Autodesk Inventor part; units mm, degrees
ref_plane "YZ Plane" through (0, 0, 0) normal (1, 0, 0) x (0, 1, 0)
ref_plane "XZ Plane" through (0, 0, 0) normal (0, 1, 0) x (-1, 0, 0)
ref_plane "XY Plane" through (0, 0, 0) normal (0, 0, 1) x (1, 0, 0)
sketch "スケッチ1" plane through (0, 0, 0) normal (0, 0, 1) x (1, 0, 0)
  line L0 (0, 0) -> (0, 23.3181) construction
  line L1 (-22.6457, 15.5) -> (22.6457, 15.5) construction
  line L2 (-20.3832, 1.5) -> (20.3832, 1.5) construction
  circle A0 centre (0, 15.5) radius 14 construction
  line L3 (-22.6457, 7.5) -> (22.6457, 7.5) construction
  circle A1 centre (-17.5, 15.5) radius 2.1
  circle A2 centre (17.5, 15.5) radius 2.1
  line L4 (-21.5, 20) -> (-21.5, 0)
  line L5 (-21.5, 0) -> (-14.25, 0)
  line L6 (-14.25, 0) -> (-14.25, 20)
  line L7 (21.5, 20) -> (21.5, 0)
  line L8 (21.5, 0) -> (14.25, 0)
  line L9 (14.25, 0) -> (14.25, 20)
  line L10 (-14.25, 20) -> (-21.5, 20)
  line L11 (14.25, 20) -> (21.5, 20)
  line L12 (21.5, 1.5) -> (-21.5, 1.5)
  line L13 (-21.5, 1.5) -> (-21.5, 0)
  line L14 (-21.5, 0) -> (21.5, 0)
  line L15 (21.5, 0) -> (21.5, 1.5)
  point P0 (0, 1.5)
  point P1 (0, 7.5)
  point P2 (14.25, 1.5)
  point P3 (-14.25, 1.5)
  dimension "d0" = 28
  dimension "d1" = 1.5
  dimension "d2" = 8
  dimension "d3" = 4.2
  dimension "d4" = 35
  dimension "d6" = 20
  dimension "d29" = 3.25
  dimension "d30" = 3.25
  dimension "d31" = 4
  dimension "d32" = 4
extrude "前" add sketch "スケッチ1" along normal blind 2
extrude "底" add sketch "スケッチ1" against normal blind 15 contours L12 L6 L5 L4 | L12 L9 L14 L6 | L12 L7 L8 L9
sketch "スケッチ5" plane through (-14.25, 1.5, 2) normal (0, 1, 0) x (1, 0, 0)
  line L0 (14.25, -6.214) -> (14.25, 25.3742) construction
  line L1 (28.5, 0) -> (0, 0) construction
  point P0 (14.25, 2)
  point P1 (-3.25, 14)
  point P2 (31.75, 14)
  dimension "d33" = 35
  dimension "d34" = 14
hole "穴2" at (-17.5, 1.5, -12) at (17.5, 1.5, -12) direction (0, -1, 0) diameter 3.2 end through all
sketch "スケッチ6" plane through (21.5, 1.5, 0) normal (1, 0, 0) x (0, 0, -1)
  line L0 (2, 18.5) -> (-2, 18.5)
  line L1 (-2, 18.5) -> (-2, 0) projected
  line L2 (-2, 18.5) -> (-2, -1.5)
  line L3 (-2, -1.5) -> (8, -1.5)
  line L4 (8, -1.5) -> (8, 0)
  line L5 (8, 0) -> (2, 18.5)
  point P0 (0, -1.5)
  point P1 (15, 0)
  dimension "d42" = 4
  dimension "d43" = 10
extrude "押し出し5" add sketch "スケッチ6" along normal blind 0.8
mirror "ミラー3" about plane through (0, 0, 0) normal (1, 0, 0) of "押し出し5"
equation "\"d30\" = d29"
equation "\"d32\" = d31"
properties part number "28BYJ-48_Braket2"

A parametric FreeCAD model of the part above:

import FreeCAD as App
import Part
import Sketcher

doc = App.newDocument("Part")
body = doc.addObject("PartDesign::Body", "Body")

sketch1 = doc.addObject("Sketcher::SketchObject", "Sketch")
body.addObject(sketch1)
sketch1.AttachmentSupport = (doc.XY_Plane, [""])
sketch1.MapMode = "FlatFace"
sketch1.addGeometry([
    Part.LineSegment(App.Vector(-14.25, 20, 0), App.Vector(-21.5, 20, 0)),
    Part.LineSegment(App.Vector(-21.5, 20, 0), App.Vector(-21.5, 0, 0)),
    Part.LineSegment(App.Vector(-21.5, 0, 0), App.Vector(21.5, 0, 0)),
    Part.LineSegment(App.Vector(21.5, 0, 0), App.Vector(21.5, 20, 0)),
    Part.LineSegment(App.Vector(21.5, 20, 0), App.Vector(14.25, 20, 0)),
    Part.LineSegment(App.Vector(14.25, 20, 0), App.Vector(14.25, 1.5, 0)),
    Part.LineSegment(App.Vector(14.25, 1.5, 0), App.Vector(-14.25, 1.5, 0)),
    Part.LineSegment(App.Vector(-14.25, 1.5, 0), App.Vector(-14.25, 20, 0)),
    Part.Circle(App.Vector(-17.5, 15.5, 0), App.Vector(0, 0, 1), 2.1),
    Part.Circle(App.Vector(17.5, 15.5, 0), App.Vector(0, 0, 1), 2.1),
], False)
sketch1.addConstraint([
    Sketcher.Constraint("Coincident", 0, 2, 1, 1),
    Sketcher.Constraint("Coincident", 1, 2, 2, 1),
    Sketcher.Constraint("Coincident", 2, 2, 3, 1),
    Sketcher.Constraint("Coincident", 3, 2, 4, 1),
    Sketcher.Constraint("Coincident", 4, 2, 5, 1),
    Sketcher.Constraint("Coincident", 5, 2, 6, 1),
    Sketcher.Constraint("Coincident", 6, 2, 7, 1),
    Sketcher.Constraint("Coincident", 7, 2, 0, 1),
    Sketcher.Constraint("Horizontal", 0),
    Sketcher.Constraint("Vertical", 1),
    Sketcher.Constraint("Horizontal", 2),
    Sketcher.Constraint("Vertical", 3),
    Sketcher.Constraint("Horizontal", 4),
    Sketcher.Constraint("Vertical", 5),
    Sketcher.Constraint("Horizontal", 6),
    Sketcher.Constraint("Vertical", 7),
    Sketcher.Constraint("Equal", 8, 9),
    Sketcher.Constraint("Symmetric", 1, 2, 2, 2, -1, 1),
    Sketcher.Constraint("Symmetric", 8, 3, 9, 3, -2),
    Sketcher.Constraint("Symmetric", 4, 2, 7, 2, -2),
    Sketcher.Constraint("Diameter", 8, 4.2),
    Sketcher.Constraint("DistanceY", 1, 2, 1, 1, 20.0),
    Sketcher.Constraint("DistanceX", 8, 3, 9, 3, 35.0),
    Sketcher.Constraint("DistanceX", 0, 2, 8, 3, 4.0),
    Sketcher.Constraint("DistanceY", -1, 1, 5, 2, 1.5),
    Sketcher.Constraint("DistanceX", 4, 2, 9, 3, 3.25),
    Sketcher.Constraint("DistanceY", 5, 2, 9, 3, 14.0),
])
pad1 = doc.addObject("PartDesign::Pad", "Pad")
body.addObject(pad1)
pad1.Profile = sketch1
pad1.Length = 2

sketch2 = doc.addObject("Sketcher::SketchObject", "Sketch001")
body.addObject(sketch2)
sketch2.AttachmentSupport = (doc.XY_Plane, [""])
sketch2.MapMode = "FlatFace"
sketch2.addGeometry([
    Part.LineSegment(App.Vector(-21.5, 1.5, 0), App.Vector(-21.5, 0, 0)),
    Part.LineSegment(App.Vector(-21.5, 0, 0), App.Vector(21.5, 0, 0)),
    Part.LineSegment(App.Vector(21.5, 0, 0), App.Vector(21.5, 1.5, 0)),
    Part.LineSegment(App.Vector(21.5, 1.5, 0), App.Vector(-21.5, 1.5, 0)),
], False)
sketch2.addConstraint([
    Sketcher.Constraint("Coincident", 0, 2, 1, 1),
    Sketcher.Constraint("Coincident", 1, 2, 2, 1),
    Sketcher.Constraint("Coincident", 2, 2, 3, 1),
    Sketcher.Constraint("Coincident", 3, 2, 0, 1),
    Sketcher.Constraint("Vertical", 0),
    Sketcher.Constraint("Horizontal", 1),
    Sketcher.Constraint("Vertical", 2),
    Sketcher.Constraint("Horizontal", 3),
    Sketcher.Constraint("Symmetric", 0, 2, 1, 2, -1, 1),
    Sketcher.Constraint("DistanceY", 0, 2, 0, 1, 1.5),
    Sketcher.Constraint("DistanceX", 1, 1, 1, 2, 43.0),
])
pad2 = doc.addObject("PartDesign::Pad", "Pad001")
body.addObject(pad2)
pad2.Profile = sketch2
pad2.Length = 15
pad2.Reversed = True

sketch3 = doc.addObject("Sketcher::SketchObject", "Sketch002")
body.addObject(sketch3)
sketch3.AttachmentSupport = (doc.XZ_Plane, [""])
sketch3.MapMode = "FlatFace"
sketch3.AttachmentOffset = App.Placement(App.Vector(0, 0, -1.5), App.Rotation())
sketch3.addGeometry([
    Part.Circle(App.Vector(-17.5, -12, 0), App.Vector(0, 0, 1), 1.6),
    Part.Circle(App.Vector(17.5, -12, 0), App.Vector(0, 0, 1), 1.6),
], False)
sketch3.addConstraint([
    Sketcher.Constraint("Equal", 0, 1),
    Sketcher.Constraint("Symmetric", 0, 3, 1, 3, -2),
    Sketcher.Constraint("Diameter", 0, 3.2),
    Sketcher.Constraint("DistanceY", 0, 3, -1, 1, 12.0),
    Sketcher.Constraint("DistanceX", 0, 3, 1, 3, 35.0),
])
doc.recompute()
hole = doc.addObject("PartDesign::Hole", "Hole")
body.addObject(hole)
hole.Profile = sketch3
hole.ThreadType = "None"
hole.Diameter = 3.2
hole.DepthType = "ThroughAll"
hole.Reversed = True

sketch4 = doc.addObject("Sketcher::SketchObject", "Sketch003")
body.addObject(sketch4)
sketch4.AttachmentSupport = (doc.YZ_Plane, [""])
sketch4.MapMode = "FlatFace"
sketch4.AttachmentOffset = App.Placement(App.Vector(0, 0, 21.5), App.Rotation())
sketch4.addGeometry([
    Part.LineSegment(App.Vector(1.5, -8, 0), App.Vector(20, -2, 0)),
    Part.LineSegment(App.Vector(20, -2, 0), App.Vector(20, 2, 0)),
    Part.LineSegment(App.Vector(20, 2, 0), App.Vector(0, 2, 0)),
    Part.LineSegment(App.Vector(0, 2, 0), App.Vector(0, -8, 0)),
    Part.LineSegment(App.Vector(0, -8, 0), App.Vector(1.5, -8, 0)),
], False)
sketch4.addConstraint([
    Sketcher.Constraint("Coincident", 0, 2, 1, 1),
    Sketcher.Constraint("Coincident", 1, 2, 2, 1),
    Sketcher.Constraint("Coincident", 2, 2, 3, 1),
    Sketcher.Constraint("Coincident", 3, 2, 4, 1),
    Sketcher.Constraint("Coincident", 4, 2, 0, 1),
    Sketcher.Constraint("Vertical", 1),
    Sketcher.Constraint("Horizontal", 2),
    Sketcher.Constraint("Vertical", 3),
    Sketcher.Constraint("Horizontal", 4),
    Sketcher.Constraint("PointOnObject", 2, 2, -2),
    Sketcher.Constraint("DistanceY", 1, 1, 1, 2, 4.0),
    Sketcher.Constraint("DistanceY", 3, 2, 3, 1, 10.0),
    Sketcher.Constraint("DistanceX", 2, 2, 2, 1, 20.0),
    Sketcher.Constraint("DistanceX", 4, 1, 4, 2, 1.5),
    Sketcher.Constraint("DistanceY", 0, 2, -1, 1, 2.0),
])
pad3 = doc.addObject("PartDesign::Pad", "Pad002")
body.addObject(pad3)
pad3.Profile = sketch4
pad3.Length = 0.8
doc.recompute()

mirrored = doc.addObject("PartDesign::Mirrored", "Mirrored")
body.addObject(mirrored)
mirrored.Originals = [pad3]
mirrored.MirrorPlane = (doc.YZ_Plane, [""])
body.Tip = mirrored

doc.recompute()
